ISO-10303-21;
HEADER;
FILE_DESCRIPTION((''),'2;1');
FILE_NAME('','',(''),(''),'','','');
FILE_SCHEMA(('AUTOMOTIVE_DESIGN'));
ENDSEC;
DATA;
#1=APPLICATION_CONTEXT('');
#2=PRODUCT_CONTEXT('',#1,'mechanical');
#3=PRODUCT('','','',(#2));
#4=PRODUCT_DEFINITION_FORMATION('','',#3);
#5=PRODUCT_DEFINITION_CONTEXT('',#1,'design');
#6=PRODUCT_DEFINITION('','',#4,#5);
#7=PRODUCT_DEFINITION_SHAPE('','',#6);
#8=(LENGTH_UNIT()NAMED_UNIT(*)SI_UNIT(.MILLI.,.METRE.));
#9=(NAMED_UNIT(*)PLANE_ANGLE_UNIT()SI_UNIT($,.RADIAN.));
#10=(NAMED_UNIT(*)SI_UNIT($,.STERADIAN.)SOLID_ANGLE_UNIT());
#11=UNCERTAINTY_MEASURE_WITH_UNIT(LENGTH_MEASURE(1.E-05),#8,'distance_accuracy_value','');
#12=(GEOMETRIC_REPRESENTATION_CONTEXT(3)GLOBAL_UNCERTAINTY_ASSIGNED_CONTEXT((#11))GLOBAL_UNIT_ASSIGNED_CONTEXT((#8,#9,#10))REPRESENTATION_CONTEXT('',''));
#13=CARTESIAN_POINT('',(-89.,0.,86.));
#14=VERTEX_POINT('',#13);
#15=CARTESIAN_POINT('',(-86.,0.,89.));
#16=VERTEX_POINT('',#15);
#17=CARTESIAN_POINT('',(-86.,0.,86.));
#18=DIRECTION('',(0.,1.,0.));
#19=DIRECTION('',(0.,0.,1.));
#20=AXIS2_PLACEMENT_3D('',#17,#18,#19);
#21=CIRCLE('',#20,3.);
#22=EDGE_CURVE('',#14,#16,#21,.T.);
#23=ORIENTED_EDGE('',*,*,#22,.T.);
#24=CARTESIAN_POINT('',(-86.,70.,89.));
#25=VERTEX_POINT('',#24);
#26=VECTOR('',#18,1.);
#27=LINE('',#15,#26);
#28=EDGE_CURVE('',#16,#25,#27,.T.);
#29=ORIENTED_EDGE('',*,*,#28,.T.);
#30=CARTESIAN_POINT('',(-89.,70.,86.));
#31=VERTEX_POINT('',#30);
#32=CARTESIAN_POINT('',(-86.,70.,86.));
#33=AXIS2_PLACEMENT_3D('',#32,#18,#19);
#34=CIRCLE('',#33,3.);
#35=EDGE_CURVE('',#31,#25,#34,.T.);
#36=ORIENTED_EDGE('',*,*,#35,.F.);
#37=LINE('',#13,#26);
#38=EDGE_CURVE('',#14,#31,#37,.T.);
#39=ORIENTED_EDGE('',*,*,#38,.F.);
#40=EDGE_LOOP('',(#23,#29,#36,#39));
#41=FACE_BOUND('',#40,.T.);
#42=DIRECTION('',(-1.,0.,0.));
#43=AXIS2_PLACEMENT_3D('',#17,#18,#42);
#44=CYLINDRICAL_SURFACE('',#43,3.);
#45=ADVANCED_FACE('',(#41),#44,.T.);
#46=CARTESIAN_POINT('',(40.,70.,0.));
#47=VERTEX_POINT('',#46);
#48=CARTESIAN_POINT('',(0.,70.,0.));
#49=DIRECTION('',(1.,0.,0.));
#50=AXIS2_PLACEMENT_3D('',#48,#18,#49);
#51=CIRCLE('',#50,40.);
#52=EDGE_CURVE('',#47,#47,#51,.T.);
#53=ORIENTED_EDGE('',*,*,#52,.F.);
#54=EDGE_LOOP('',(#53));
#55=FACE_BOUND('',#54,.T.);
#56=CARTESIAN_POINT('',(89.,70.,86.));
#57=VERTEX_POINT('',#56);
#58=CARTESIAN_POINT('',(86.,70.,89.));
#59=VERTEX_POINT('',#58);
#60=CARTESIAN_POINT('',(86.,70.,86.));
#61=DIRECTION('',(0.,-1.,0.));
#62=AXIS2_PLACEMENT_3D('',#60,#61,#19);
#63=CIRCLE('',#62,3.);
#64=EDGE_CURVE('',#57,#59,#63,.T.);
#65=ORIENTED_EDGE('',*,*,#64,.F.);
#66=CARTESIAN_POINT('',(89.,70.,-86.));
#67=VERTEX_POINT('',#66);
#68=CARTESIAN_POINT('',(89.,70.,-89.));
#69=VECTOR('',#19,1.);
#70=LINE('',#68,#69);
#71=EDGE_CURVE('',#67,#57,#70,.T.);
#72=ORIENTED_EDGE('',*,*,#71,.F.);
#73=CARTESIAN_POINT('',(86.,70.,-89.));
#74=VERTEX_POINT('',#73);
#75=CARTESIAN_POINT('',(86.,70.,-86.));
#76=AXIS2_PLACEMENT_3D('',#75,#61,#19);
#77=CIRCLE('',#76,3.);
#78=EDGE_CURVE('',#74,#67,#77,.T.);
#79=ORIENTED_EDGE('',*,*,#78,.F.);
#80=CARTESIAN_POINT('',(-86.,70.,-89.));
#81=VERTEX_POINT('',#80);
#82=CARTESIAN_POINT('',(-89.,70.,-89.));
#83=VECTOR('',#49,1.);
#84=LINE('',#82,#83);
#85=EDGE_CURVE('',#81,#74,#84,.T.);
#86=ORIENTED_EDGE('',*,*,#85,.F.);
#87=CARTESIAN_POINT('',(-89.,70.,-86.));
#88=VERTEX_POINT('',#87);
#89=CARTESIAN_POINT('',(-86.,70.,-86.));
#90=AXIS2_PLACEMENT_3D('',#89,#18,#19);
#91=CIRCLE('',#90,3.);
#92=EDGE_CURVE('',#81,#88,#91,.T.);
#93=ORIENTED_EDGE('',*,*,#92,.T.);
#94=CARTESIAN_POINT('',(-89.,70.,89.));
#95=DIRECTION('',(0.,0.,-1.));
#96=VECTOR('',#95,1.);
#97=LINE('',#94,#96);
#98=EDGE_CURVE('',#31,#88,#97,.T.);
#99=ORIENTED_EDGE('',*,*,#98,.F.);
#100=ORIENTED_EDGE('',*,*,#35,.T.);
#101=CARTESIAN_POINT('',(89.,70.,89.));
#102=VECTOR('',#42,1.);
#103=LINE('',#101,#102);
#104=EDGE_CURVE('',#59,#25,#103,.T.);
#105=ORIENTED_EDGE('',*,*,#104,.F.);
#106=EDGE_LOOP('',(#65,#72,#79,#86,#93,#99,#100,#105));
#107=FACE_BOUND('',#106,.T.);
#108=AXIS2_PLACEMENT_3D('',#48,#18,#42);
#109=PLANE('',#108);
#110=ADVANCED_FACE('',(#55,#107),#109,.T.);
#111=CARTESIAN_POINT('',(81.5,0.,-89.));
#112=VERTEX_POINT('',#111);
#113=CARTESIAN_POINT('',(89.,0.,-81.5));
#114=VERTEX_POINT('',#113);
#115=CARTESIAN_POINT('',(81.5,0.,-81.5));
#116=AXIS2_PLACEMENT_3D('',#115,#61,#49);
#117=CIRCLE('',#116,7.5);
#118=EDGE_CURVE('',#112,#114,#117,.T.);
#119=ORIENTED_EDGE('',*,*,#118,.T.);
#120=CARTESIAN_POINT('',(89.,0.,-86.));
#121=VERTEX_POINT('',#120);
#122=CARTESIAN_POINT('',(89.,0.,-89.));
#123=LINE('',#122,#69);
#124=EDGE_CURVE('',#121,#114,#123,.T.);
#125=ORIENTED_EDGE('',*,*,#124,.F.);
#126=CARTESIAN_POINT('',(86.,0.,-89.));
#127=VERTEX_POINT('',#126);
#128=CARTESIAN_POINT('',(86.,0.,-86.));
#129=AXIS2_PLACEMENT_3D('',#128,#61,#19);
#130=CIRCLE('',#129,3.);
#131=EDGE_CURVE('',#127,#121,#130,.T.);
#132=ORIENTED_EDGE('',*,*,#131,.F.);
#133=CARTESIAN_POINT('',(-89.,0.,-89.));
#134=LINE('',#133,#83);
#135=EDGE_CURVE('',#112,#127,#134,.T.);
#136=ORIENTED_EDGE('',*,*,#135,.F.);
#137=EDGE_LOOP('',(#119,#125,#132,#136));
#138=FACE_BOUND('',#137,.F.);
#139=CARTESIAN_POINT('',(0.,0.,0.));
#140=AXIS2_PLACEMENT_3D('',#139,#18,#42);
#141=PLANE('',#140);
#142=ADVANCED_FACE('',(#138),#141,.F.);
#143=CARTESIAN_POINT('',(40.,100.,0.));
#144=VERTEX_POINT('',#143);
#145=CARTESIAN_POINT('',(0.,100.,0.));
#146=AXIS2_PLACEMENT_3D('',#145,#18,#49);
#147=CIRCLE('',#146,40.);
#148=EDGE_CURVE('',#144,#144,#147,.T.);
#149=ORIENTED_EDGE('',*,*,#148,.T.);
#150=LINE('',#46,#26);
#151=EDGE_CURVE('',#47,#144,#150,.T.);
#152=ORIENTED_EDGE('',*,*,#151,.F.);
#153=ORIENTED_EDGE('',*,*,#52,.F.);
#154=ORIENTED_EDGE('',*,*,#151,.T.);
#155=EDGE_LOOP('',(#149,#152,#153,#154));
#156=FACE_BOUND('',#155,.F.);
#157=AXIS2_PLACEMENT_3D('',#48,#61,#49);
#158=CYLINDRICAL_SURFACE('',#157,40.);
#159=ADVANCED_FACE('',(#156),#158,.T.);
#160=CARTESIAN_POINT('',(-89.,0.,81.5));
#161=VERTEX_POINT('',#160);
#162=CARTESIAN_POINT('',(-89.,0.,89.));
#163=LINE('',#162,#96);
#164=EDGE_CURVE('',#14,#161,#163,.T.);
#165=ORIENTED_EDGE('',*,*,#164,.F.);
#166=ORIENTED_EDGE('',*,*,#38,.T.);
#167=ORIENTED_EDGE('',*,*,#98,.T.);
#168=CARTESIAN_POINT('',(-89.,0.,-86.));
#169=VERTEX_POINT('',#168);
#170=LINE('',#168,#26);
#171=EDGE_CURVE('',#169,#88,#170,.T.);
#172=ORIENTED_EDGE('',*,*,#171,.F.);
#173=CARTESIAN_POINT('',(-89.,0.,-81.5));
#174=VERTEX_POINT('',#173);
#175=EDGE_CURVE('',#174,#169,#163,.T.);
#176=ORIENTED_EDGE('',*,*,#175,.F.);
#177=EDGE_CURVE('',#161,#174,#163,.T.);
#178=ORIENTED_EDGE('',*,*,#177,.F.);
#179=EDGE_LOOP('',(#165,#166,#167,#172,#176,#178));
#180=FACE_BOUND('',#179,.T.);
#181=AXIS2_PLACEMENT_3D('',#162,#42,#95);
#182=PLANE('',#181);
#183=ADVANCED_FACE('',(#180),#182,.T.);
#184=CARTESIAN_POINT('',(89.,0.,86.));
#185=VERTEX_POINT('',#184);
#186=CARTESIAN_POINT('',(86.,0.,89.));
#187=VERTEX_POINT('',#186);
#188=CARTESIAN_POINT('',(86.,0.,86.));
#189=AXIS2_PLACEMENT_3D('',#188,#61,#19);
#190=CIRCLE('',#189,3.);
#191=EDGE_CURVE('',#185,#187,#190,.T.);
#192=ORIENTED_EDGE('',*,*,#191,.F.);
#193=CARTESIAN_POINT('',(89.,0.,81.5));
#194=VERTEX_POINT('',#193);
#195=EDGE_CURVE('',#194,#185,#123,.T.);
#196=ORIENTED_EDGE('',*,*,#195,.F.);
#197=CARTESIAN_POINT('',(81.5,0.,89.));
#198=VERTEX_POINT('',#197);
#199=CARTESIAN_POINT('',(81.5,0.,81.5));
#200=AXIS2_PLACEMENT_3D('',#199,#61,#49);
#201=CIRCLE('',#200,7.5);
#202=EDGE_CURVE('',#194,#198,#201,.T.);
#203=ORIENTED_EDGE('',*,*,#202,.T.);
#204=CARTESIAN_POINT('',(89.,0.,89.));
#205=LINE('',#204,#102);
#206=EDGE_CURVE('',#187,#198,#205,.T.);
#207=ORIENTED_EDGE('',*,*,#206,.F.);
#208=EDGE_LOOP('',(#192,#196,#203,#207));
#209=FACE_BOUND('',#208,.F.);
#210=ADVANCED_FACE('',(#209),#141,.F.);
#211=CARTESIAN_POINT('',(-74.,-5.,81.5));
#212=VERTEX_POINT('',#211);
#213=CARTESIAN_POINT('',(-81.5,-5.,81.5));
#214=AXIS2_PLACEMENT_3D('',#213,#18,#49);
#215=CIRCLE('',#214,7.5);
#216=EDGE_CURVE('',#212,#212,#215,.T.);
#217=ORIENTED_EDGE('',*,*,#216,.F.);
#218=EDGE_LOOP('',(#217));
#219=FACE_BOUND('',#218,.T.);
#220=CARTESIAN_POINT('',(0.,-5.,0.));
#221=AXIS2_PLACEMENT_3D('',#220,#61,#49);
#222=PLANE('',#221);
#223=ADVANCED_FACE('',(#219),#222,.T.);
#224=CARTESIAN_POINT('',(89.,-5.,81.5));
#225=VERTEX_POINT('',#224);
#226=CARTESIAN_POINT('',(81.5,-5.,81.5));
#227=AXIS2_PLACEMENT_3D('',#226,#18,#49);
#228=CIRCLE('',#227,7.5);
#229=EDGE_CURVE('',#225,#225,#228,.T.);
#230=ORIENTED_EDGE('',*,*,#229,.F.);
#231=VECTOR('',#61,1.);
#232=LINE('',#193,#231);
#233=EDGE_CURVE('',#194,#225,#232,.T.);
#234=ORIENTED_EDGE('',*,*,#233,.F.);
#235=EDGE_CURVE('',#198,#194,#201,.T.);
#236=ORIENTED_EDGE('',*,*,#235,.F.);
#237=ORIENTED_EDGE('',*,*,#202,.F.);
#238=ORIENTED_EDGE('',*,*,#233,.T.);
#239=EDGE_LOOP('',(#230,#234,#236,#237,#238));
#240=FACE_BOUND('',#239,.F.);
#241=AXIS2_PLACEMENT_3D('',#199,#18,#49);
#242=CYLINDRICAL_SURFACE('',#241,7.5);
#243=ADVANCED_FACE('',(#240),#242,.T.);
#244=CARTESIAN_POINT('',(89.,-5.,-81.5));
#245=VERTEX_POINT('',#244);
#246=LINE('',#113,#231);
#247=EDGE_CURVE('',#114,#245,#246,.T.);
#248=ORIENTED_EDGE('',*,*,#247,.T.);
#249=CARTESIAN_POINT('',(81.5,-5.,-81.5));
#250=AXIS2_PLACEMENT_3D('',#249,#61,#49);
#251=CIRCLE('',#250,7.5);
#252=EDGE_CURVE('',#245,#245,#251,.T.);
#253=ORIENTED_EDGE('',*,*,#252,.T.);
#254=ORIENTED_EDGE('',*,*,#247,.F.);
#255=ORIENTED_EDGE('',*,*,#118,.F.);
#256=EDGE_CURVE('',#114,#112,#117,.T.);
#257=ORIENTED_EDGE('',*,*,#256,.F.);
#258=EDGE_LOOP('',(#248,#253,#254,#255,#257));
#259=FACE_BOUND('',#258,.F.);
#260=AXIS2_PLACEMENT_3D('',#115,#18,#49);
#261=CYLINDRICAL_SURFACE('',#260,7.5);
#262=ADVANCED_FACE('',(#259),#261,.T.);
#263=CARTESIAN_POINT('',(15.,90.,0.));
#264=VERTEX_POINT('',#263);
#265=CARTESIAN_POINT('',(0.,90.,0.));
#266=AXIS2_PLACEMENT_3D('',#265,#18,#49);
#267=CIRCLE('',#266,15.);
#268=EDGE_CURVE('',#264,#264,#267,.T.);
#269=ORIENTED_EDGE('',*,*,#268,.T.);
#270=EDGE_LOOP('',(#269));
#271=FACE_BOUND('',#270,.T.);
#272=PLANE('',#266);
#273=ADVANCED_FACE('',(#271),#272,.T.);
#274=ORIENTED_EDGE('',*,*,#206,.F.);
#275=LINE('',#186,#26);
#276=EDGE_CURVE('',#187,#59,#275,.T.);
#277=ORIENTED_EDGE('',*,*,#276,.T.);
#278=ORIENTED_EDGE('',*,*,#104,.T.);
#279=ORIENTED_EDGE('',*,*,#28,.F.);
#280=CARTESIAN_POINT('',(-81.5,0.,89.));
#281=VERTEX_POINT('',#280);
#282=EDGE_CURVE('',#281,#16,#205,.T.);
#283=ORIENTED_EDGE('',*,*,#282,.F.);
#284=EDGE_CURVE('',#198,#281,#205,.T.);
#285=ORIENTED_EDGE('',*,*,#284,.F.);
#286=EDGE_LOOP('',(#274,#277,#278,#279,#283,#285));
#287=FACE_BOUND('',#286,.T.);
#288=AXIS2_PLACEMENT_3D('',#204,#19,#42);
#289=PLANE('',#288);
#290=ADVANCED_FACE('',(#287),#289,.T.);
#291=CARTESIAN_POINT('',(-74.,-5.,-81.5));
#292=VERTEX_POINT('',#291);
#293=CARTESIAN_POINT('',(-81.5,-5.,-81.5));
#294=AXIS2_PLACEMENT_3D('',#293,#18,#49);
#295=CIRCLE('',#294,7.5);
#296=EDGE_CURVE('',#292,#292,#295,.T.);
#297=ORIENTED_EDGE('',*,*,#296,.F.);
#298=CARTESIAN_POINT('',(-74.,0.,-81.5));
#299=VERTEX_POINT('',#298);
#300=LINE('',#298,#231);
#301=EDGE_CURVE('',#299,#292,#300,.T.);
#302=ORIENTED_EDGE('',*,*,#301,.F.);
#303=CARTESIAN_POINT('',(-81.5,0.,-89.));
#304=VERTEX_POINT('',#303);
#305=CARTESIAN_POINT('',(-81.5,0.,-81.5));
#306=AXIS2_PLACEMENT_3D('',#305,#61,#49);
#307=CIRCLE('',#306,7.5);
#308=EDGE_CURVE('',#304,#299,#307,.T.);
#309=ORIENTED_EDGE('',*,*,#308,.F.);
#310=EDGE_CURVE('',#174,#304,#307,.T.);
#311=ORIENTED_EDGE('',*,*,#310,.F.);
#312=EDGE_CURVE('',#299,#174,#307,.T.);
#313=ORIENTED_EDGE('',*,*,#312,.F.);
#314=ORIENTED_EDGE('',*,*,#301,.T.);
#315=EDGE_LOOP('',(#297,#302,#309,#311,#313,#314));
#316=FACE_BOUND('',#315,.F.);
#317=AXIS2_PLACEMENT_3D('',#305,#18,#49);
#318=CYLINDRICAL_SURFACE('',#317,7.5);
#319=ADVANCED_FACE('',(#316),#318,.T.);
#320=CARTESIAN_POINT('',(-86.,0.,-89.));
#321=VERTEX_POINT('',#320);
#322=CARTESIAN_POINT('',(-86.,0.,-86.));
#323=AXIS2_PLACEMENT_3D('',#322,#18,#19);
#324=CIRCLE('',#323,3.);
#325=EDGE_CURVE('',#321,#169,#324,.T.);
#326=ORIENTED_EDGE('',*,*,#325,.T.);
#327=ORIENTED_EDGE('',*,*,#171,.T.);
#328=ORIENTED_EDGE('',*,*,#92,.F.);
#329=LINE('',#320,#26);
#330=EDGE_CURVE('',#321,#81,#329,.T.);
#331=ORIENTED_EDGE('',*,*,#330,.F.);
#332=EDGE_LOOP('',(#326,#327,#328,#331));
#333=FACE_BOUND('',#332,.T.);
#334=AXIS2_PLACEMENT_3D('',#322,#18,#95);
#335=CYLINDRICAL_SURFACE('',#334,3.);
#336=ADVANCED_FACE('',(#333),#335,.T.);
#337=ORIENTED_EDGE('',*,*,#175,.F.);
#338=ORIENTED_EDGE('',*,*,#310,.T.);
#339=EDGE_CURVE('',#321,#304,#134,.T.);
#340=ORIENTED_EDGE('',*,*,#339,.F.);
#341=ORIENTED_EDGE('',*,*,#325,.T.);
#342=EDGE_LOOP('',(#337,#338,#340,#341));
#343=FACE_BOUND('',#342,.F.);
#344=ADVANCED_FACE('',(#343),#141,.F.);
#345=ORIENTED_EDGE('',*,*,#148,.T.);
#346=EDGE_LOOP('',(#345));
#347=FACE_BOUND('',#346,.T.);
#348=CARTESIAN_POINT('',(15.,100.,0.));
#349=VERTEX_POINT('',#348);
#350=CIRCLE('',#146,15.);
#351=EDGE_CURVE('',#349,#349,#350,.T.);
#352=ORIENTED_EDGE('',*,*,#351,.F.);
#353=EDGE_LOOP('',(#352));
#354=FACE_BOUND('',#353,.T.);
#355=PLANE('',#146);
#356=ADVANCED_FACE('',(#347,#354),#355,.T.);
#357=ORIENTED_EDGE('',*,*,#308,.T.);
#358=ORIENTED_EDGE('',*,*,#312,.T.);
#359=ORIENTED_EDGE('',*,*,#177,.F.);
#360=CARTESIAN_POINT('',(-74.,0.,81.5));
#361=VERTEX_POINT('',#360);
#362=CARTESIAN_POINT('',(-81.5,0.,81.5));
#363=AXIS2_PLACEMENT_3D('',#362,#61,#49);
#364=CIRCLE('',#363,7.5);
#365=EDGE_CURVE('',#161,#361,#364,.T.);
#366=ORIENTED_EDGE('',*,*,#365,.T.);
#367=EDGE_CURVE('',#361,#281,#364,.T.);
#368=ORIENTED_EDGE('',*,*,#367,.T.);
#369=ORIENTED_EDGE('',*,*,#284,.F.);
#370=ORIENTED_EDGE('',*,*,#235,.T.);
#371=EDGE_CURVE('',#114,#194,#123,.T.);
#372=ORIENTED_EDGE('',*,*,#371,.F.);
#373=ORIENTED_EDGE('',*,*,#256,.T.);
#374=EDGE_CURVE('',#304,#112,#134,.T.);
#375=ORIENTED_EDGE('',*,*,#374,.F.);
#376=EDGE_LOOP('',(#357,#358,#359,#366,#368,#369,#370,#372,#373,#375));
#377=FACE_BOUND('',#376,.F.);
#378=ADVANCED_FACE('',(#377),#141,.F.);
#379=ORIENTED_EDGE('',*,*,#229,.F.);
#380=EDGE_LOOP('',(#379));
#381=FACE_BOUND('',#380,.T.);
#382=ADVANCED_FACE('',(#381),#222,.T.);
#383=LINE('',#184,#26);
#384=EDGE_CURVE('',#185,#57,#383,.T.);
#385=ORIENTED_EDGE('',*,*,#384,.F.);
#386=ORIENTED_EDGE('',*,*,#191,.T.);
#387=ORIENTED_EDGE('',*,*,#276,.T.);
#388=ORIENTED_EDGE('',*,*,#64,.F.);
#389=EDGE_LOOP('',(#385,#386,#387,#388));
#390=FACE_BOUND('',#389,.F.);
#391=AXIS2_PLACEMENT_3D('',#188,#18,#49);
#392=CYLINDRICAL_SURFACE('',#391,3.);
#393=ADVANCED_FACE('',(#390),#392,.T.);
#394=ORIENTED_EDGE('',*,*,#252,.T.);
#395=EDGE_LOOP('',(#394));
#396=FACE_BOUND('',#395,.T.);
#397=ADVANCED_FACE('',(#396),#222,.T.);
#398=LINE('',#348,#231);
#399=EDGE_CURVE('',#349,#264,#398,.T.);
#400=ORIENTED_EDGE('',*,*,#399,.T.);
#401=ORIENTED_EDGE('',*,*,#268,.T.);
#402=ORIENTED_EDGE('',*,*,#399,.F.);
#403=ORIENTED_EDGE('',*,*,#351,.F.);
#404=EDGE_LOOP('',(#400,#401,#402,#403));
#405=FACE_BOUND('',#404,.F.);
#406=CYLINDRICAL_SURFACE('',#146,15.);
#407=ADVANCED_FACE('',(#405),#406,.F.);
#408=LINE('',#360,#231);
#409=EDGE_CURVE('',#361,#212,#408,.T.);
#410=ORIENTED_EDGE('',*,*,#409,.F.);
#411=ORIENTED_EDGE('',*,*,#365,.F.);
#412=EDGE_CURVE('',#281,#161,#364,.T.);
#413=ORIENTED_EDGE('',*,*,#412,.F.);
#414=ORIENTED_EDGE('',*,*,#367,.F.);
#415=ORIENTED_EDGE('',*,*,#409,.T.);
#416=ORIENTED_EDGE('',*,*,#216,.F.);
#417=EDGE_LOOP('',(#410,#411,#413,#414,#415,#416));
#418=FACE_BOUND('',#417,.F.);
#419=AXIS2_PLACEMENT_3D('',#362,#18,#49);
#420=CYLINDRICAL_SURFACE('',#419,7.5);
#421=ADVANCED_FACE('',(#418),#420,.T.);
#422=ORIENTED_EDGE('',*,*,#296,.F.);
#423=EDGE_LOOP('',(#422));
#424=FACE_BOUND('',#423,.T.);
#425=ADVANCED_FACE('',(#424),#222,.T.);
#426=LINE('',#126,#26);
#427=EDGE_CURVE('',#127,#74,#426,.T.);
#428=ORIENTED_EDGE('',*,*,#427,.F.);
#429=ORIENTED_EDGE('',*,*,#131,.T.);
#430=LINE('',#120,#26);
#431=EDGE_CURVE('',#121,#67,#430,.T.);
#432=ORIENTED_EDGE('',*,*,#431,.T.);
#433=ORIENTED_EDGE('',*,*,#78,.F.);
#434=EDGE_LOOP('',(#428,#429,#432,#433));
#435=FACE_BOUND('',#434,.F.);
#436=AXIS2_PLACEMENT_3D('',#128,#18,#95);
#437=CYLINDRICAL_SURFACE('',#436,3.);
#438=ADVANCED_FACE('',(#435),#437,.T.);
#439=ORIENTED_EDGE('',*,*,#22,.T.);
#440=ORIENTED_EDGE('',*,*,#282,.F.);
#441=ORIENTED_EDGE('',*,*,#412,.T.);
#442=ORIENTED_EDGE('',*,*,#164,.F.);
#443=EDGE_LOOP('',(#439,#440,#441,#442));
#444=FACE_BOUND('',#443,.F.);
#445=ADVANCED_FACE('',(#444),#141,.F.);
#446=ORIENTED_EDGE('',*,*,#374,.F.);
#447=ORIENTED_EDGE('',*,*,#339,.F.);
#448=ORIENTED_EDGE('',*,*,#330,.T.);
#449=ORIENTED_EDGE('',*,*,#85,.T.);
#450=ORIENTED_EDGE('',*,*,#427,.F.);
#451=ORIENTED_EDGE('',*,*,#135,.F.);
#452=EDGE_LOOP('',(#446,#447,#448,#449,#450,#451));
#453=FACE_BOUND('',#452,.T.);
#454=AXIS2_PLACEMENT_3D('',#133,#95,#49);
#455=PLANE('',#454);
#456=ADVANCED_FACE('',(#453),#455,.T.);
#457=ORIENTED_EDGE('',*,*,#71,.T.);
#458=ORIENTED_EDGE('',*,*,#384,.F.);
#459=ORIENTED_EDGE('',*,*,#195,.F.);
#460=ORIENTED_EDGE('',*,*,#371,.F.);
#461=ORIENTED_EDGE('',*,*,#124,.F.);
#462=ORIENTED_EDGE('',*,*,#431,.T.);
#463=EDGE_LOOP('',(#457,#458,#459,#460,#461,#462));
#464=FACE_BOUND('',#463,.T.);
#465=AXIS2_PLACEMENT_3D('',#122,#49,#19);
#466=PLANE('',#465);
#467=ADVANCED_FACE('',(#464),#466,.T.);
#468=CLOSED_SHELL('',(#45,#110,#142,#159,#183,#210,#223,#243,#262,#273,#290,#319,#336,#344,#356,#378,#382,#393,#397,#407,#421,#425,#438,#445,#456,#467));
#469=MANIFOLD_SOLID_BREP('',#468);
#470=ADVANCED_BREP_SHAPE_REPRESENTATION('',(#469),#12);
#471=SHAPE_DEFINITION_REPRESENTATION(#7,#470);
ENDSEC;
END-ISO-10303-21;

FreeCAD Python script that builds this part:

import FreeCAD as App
import Part
import Sketcher
from FreeCAD import Vector
Q = App.Units.Quantity


def edges_at(feature, points):
    """Names of the edges that pass closest to the given points."""
    edges = feature.Shape.Edges
    near = lambda p: min(range(len(edges)), key=lambda i: edges[i].distToShape(Part.Vertex(*p))[0])
    return sorted({f"Edge{near(p) + 1}" for p in points})


def add_polygon(sketch, points):
    """Adds a closed chain of lines whose ends are joined by coincident constraints."""
    first, n = sketch.GeometryCount, len(points)
    for a, b in zip(points, points[1:] + points[:1]):
        sketch.addGeometry(Part.LineSegment(App.Vector(*a, 0), App.Vector(*b, 0)), False)
    for i in range(n):
        sketch.addConstraint(Sketcher.Constraint("Coincident", first + i, 2, first + (i + 1) % n, 1))

doc = App.newDocument("Part")
body = doc.addObject("PartDesign::Body", "Body")

sketch1 = body.newObject("Sketcher::SketchObject", "Sketch")
sketch1.AttachmentSupport = (doc.getObject("XZ_Plane"), [""])
sketch1.MapMode = "FlatFace"
add_polygon(sketch1, [(89, -89), (-89, -89), (-89, 89), (89, 89)])
sketch1.addConstraint([
    Sketcher.Constraint("Horizontal", 0),
    Sketcher.Constraint("Vertical", 1),
    Sketcher.Constraint("Horizontal", 2),
    Sketcher.Constraint("Vertical", 3),
    Sketcher.Constraint("Symmetric", 0, 2, 2, 2, -1, 1),
    Sketcher.Constraint("Equal", 2, 1),
    Sketcher.Constraint("DistanceX", 0, 2, 0, 1, Q("178 mm")),
])
pad1 = body.newObject("PartDesign::Pad", "Pad")
pad1.Profile = sketch1
pad1.Length = 70
pad1.Reversed = True

sketch2 = body.newObject("Sketcher::SketchObject", "Sketch001")
sketch2.AttachmentSupport = (doc.getObject("XZ_Plane"), [""])
sketch2.MapMode = "FlatFace"
sketch2.AttachmentOffset = App.Placement(Vector(0, 0, -70), App.Rotation())
sketch2.addGeometry(Part.Circle(Vector(0, 0, 0), Vector(0, 0, 1), 40), False)
sketch2.addConstraint([
    Sketcher.Constraint("Coincident", 0, 3, -1, 1),
    Sketcher.Constraint("Diameter", 0, Q("80 mm")),
])
pad2 = body.newObject("PartDesign::Pad", "Pad001")
pad2.Profile = sketch2
pad2.Length = 30
pad2.Reversed = True

sketch3 = body.newObject("Sketcher::SketchObject", "Sketch002")
sketch3.AttachmentSupport = (doc.getObject("XZ_Plane"), [""])
sketch3.MapMode = "FlatFace"
sketch3.AttachmentOffset = App.Placement(Vector(0, 0, -100), App.Rotation())
sketch3.addGeometry(Part.Circle(Vector(0, 0, 0), Vector(0, 0, 1), 15), False)
sketch3.addConstraint([
    Sketcher.Constraint("Coincident", 0, 3, -1, 1),
    Sketcher.Constraint("Diameter", 0, Q("30 mm")),
])
pocket1 = body.newObject("PartDesign::Pocket", "Pocket")
pocket1.Profile = sketch3
pocket1.Length = 10
pocket1.Reversed = True

sketch4 = body.newObject("Sketcher::SketchObject", "Sketch003")
sketch4.AttachmentSupport = (doc.getObject("XZ_Plane"), [""])
sketch4.MapMode = "FlatFace"
sketch4.addGeometry([
    Part.Circle(Vector(-81.5, 81.5, 0), Vector(0, 0, 1), 7.5),
    Part.Circle(Vector(-81.5, -81.5, 0), Vector(0, 0, 1), 7.5),
    Part.Circle(Vector(81.5, 81.5, 0), Vector(0, 0, 1), 7.5),
    Part.Circle(Vector(81.5, -81.5, 0), Vector(0, 0, 1), 7.5),
], False)
sketch4.addConstraint([
    Sketcher.Constraint("Equal", 0, 1),
    Sketcher.Constraint("Equal", 1, 2),
    Sketcher.Constraint("Equal", 2, 3),
    Sketcher.Constraint("Symmetric", 1, 3, 2, 3, -1, 1),
    Sketcher.Constraint("Symmetric", 0, 3, 3, 3, -1, 1),
    Sketcher.Constraint("Symmetric", 0, 3, 2, 3, -2),
    Sketcher.Constraint("Diameter", 0, Q("15 mm")),
    Sketcher.Constraint("DistanceY", 1, 3, 0, 3, Q("163 mm")),
    Sketcher.Constraint("DistanceX", 0, 3, 2, 3, Q("163 mm")),
])
pad3 = body.newObject("PartDesign::Pad", "Pad002")
pad3.Profile = sketch4
pad3.Length = 5
doc.recompute()

fillet = body.newObject("PartDesign::Fillet", "Fillet")
fillet.Base = (pad3, edges_at(pad3, [
    (-89, 35, 89),
    (89, 35, 89),
    (-89, 35, -89),
    (89, 35, -89),
]))
fillet.Radius = 3

doc.recompute()
